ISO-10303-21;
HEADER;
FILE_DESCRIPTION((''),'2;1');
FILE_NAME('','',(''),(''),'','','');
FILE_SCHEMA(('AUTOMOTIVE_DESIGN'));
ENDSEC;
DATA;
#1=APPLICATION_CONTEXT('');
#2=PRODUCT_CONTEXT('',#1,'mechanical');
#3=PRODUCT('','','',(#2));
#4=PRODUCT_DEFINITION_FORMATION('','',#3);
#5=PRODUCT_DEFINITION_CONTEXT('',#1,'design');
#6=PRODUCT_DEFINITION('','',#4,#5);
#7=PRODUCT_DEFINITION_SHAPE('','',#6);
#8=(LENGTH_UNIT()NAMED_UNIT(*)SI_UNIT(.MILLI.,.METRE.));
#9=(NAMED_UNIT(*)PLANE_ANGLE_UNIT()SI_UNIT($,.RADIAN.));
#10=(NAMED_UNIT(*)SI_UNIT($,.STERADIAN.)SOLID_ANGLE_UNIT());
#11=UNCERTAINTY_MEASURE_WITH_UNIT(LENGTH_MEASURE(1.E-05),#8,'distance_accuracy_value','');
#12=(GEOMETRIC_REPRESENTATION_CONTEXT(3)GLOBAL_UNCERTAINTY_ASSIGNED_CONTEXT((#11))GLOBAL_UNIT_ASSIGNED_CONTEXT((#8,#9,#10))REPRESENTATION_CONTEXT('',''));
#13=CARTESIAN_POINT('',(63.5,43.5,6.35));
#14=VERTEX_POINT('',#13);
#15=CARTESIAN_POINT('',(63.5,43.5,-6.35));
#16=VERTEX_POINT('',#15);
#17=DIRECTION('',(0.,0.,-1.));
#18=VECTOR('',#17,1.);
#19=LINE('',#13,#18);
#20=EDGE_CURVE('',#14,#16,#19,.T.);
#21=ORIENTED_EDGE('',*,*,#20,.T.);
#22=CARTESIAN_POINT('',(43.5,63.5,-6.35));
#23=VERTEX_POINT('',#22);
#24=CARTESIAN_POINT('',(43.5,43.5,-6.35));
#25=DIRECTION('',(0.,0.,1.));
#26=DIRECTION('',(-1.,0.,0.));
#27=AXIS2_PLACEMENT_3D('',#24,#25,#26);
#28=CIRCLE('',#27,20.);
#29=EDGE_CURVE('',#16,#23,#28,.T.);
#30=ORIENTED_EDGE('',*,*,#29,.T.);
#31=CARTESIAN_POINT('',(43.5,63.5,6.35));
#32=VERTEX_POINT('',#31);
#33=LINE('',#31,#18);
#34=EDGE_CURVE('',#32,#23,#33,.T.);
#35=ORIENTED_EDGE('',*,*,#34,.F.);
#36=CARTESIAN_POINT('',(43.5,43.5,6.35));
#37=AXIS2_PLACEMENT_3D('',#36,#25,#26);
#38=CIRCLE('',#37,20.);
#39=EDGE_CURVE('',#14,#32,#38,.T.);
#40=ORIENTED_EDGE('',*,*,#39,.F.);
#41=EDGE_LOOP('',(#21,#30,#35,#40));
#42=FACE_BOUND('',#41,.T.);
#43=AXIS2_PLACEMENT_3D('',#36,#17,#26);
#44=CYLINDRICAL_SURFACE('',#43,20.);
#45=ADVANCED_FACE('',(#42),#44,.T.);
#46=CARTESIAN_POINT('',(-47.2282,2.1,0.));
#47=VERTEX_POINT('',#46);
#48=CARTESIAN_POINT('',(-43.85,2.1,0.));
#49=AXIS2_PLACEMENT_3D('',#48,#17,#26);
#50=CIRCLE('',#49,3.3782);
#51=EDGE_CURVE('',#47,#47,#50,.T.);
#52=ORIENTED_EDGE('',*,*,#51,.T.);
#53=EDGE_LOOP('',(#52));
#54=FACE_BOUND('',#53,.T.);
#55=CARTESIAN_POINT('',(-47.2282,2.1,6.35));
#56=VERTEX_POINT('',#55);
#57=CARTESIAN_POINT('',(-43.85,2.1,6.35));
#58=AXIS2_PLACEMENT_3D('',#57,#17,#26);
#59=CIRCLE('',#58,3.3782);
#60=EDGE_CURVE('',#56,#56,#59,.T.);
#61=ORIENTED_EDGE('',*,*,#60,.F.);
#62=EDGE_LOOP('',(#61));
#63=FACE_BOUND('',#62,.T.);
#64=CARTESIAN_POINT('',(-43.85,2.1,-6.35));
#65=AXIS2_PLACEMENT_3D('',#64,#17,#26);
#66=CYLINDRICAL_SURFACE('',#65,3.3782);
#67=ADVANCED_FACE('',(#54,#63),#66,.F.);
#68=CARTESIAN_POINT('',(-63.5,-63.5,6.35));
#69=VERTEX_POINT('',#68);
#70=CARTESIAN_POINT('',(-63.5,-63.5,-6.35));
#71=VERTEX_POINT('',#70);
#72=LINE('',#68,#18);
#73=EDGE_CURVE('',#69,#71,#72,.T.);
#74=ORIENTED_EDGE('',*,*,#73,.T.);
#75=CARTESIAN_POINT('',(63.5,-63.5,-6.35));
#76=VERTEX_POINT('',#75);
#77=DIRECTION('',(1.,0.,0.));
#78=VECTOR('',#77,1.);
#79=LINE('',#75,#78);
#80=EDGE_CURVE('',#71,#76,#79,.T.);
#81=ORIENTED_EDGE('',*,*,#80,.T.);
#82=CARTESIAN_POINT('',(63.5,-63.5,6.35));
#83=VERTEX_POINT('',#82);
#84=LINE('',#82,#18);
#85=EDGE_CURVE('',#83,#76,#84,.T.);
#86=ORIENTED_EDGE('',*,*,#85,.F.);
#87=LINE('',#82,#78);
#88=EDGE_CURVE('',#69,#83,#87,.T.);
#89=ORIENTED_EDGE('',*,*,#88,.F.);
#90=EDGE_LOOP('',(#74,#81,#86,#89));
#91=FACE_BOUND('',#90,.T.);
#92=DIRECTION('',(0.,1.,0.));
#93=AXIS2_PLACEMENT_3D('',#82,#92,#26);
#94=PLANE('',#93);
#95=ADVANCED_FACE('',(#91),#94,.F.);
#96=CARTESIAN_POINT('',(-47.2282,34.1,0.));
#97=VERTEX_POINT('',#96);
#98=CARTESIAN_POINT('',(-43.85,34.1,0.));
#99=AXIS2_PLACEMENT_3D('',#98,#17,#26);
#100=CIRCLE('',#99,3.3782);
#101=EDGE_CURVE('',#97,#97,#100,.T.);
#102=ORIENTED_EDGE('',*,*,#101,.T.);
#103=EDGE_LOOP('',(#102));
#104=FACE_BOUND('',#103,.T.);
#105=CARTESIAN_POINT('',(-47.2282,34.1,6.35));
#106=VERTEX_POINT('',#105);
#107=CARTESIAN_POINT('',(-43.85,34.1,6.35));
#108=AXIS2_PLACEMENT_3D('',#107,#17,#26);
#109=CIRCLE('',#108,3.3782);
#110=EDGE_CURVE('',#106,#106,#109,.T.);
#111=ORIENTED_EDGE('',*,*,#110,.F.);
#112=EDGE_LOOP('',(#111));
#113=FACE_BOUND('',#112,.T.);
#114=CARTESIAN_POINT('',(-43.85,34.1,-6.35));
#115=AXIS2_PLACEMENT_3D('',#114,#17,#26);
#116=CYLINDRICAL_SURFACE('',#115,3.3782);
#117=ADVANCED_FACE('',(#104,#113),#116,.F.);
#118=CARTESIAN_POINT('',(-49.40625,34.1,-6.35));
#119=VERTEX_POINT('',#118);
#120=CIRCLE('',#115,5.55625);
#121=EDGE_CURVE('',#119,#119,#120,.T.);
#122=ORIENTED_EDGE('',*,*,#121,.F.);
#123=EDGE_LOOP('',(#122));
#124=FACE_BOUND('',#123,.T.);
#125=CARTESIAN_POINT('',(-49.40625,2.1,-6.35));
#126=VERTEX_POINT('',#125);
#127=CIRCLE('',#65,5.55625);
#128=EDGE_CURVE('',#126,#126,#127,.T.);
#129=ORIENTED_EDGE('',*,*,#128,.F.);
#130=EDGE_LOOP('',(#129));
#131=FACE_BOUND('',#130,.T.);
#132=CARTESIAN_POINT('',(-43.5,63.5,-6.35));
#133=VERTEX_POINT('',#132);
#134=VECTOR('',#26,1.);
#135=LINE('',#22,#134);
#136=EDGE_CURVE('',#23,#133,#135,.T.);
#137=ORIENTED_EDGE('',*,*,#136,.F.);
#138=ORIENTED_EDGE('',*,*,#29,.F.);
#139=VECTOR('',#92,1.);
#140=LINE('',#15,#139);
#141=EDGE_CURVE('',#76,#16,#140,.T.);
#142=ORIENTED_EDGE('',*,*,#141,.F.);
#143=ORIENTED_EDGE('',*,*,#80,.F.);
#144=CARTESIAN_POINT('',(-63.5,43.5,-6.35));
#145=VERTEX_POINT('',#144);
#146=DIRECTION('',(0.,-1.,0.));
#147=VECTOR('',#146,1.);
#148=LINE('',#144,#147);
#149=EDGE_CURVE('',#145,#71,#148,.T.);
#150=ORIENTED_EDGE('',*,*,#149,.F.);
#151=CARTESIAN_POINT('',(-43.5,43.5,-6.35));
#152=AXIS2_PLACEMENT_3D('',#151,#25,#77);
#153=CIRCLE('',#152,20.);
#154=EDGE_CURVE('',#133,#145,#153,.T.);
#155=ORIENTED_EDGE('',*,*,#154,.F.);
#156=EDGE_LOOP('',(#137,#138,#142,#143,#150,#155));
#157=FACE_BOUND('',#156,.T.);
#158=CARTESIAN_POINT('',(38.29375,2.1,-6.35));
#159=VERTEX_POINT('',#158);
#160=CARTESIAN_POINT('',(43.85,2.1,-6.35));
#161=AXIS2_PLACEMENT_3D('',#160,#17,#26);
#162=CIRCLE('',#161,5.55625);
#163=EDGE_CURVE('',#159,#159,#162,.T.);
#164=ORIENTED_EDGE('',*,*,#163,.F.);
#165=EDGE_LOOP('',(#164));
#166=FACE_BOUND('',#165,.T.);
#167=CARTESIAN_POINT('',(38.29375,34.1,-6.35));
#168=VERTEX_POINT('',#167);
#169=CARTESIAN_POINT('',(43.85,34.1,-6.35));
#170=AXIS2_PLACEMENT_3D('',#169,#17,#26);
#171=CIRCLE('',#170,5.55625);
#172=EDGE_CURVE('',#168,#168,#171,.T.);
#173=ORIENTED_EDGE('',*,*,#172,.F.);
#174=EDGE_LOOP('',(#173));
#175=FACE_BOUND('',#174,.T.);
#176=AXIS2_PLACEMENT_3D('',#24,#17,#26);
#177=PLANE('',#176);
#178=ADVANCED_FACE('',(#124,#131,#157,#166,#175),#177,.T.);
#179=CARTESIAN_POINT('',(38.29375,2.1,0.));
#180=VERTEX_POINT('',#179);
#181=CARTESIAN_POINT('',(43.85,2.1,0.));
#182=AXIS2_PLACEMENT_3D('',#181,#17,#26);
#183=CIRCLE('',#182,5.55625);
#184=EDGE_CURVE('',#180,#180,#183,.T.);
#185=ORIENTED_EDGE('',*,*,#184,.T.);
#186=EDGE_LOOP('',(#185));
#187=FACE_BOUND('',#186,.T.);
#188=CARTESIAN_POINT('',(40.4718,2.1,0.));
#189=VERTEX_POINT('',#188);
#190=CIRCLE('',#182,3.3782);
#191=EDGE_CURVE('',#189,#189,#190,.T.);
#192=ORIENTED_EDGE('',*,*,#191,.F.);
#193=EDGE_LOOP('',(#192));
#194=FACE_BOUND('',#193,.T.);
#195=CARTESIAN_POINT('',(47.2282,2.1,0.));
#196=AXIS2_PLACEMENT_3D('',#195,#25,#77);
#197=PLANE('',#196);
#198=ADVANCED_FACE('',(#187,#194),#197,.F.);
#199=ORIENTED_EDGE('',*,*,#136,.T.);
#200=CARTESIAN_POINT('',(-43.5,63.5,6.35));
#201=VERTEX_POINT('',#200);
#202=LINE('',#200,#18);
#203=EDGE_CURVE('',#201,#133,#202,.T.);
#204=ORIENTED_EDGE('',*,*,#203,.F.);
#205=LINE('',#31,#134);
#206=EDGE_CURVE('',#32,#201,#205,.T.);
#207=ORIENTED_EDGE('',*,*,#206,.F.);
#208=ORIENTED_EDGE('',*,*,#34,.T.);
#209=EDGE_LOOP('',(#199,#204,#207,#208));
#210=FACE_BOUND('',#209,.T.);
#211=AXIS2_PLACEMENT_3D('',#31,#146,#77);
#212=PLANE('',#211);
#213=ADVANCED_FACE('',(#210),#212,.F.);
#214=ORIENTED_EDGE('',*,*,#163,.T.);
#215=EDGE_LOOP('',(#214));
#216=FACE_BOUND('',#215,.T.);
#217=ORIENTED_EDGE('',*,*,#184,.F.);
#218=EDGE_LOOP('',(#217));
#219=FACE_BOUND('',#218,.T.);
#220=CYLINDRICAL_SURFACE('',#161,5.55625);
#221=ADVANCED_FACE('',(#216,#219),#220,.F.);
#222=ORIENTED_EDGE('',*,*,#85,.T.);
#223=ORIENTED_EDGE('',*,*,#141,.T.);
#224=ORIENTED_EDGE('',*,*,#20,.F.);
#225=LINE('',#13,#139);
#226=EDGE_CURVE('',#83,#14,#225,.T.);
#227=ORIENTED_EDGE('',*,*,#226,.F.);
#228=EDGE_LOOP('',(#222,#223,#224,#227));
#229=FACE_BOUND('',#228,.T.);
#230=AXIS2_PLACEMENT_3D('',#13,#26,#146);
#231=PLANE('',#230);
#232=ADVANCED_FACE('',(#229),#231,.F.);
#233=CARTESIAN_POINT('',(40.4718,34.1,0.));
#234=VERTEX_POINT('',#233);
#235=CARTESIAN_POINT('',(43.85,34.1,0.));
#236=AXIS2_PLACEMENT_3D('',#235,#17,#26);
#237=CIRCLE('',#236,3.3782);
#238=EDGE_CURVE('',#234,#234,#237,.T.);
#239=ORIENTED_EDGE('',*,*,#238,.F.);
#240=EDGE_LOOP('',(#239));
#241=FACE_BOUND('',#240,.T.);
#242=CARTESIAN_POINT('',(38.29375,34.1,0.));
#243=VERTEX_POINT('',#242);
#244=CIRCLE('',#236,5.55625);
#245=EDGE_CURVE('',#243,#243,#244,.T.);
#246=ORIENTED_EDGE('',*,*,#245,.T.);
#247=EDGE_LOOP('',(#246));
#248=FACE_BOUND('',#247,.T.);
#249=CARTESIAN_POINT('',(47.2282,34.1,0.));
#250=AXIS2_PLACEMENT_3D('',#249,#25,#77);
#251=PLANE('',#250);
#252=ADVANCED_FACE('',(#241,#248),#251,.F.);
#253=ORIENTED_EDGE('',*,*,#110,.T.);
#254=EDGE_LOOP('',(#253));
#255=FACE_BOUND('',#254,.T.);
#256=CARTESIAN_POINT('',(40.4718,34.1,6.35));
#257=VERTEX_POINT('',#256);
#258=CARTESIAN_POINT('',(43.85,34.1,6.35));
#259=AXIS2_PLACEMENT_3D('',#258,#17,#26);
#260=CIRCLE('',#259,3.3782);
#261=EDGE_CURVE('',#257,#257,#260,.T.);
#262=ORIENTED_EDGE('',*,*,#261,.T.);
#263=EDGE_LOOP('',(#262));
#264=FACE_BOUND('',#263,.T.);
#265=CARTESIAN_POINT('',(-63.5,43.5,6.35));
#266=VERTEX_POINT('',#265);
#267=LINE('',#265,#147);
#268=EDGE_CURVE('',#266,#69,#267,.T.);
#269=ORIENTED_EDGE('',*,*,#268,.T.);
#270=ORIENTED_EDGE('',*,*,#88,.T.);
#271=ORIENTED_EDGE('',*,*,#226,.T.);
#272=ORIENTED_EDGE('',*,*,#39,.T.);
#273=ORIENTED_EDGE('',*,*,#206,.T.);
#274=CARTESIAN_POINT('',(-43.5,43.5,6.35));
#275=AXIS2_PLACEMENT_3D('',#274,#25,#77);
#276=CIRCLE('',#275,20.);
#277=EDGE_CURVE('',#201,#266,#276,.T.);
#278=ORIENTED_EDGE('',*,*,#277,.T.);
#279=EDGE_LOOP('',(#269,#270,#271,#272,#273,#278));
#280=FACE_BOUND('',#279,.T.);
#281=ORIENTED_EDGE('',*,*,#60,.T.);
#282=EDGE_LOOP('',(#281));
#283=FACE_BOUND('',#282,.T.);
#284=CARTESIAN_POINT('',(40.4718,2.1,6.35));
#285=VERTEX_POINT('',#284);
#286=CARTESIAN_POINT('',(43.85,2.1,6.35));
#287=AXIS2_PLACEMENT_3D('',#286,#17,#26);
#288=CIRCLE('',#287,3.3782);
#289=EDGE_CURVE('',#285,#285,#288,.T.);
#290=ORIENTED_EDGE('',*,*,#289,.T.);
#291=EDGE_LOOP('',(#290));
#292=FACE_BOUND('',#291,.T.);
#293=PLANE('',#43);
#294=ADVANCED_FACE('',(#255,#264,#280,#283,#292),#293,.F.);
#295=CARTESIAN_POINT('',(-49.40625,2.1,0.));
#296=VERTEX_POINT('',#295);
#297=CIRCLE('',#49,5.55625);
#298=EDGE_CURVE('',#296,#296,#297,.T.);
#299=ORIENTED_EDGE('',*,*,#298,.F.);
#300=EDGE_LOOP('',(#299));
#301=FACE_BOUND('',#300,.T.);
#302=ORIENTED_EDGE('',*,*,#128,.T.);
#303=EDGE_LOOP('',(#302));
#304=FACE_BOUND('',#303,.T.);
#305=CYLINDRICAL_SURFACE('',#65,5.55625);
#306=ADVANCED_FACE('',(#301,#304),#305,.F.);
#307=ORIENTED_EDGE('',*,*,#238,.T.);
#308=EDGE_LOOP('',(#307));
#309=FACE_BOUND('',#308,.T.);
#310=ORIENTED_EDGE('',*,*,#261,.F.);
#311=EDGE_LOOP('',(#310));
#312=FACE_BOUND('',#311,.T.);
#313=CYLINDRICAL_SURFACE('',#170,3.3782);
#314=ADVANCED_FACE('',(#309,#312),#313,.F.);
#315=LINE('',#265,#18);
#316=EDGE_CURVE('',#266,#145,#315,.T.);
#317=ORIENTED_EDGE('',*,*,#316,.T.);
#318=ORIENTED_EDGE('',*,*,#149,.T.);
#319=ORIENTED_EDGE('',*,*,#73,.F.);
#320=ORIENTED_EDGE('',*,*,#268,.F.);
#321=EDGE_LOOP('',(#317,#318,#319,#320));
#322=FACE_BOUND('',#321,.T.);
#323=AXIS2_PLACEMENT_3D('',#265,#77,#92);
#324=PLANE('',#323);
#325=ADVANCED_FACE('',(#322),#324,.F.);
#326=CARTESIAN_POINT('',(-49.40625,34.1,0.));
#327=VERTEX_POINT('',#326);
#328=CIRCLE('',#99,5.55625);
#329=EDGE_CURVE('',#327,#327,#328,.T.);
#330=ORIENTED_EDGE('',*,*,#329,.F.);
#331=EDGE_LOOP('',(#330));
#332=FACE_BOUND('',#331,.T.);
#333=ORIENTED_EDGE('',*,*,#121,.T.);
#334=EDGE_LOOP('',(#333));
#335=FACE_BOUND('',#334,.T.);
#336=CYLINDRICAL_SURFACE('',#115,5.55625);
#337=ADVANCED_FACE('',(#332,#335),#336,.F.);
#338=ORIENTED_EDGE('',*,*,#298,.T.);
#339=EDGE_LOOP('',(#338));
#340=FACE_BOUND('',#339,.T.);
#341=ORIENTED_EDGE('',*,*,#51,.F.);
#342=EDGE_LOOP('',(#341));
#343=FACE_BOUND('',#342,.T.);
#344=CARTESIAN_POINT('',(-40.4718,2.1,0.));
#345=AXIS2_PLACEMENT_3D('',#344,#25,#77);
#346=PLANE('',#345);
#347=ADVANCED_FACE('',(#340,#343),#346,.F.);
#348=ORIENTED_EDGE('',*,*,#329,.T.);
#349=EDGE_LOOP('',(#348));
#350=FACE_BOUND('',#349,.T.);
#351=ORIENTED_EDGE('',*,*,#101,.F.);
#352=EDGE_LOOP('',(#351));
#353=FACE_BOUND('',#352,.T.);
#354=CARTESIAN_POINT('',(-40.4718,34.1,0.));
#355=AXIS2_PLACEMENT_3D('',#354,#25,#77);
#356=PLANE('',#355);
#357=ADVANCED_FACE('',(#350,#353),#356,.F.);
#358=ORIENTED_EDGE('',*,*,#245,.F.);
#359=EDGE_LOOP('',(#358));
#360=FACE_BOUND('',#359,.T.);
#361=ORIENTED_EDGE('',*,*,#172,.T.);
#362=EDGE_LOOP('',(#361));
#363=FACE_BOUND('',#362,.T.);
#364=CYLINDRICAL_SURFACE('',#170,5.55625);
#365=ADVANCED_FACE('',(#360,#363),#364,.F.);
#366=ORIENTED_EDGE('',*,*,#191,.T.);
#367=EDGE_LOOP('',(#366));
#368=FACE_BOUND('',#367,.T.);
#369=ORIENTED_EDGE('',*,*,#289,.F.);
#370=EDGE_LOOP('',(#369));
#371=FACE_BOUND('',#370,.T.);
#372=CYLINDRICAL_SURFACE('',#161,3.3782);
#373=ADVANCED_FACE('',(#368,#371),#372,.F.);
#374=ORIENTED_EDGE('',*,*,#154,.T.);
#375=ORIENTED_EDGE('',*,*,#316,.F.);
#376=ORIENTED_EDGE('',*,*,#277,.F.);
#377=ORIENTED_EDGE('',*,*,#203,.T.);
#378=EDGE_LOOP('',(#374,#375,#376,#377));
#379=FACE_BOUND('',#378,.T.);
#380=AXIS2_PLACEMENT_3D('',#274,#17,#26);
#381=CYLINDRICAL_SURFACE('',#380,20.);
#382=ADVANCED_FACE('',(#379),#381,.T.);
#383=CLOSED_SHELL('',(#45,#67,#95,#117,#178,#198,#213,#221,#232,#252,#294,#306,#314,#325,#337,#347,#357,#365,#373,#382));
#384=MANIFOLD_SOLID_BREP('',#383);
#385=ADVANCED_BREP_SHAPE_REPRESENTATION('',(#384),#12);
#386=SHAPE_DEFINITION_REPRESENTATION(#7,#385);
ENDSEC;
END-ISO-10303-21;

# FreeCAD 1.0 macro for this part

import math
import FreeCAD as App
import Part
import Sketcher
Q = App.Units.Quantity

doc = App.newDocument("Part")
body = doc.addObject("PartDesign::Body", "Body")

# Sketch on XY plane
sketch1 = body.newObject("Sketcher::SketchObject", "Sketch")
sketch1.AttachmentSupport = (doc.getObject("XY_Plane"), [""])
sketch1.MapMode = "FlatFace"
sketch1.addGeometry([
    Part.LineSegment(App.Vector(43.5, 63.5, 0), App.Vector(-43.5, 63.5, 0)),  # 0
    Part.ArcOfCircle(Part.Circle(App.Vector(-43.5, 43.5, 0), App.Vector(0, 0, 1), 20), math.radians(90), math.radians(180)),  # 1
    Part.LineSegment(App.Vector(-63.5, 43.5, 0), App.Vector(-63.5, -63.5, 0)),  # 2
    Part.LineSegment(App.Vector(-63.5, -63.5, 0), App.Vector(63.5, -63.5, 0)),  # 3
    Part.LineSegment(App.Vector(63.5, -63.5, 0), App.Vector(63.5, 43.5, 0)),  # 4
    Part.ArcOfCircle(Part.Circle(App.Vector(43.5, 43.5, 0), App.Vector(0, 0, 1), 20), math.radians(0), math.radians(90)),  # 5
], False)
sketch1.addConstraint([
    Sketcher.Constraint("Tangent", 0, 2, 1, 1),
    Sketcher.Constraint("Tangent", 1, 2, 2, 1),
    Sketcher.Constraint("Coincident", 2, 2, 3, 1),
    Sketcher.Constraint("Coincident", 3, 2, 4, 1),
    Sketcher.Constraint("Tangent", 4, 2, 5, 1),
    Sketcher.Constraint("Tangent", 5, 2, 0, 1),
    Sketcher.Constraint("Horizontal", 0),
    Sketcher.Constraint("Vertical", 2),
    Sketcher.Constraint("Horizontal", 3),
    Sketcher.Constraint("Vertical", 4),
    Sketcher.Constraint("Equal", 1, 5),
    Sketcher.Constraint("Radius", 1, Q("20 mm")),
    Sketcher.Constraint("DistanceX", 0, 2, 0, 1, Q("87 mm")),
    Sketcher.Constraint("DistanceY", 2, 2, 2, 1, Q("107 mm")),
    Sketcher.Constraint("DistanceX", 1, 3, -1, 1, Q("43.5 mm")),
    Sketcher.Constraint("DistanceY", -1, 1, 1, 3, Q("43.5 mm")),
])
pad1 = body.newObject("PartDesign::Pad", "Pad")
pad1.Profile = sketch1
pad1.Length = 12.7
pad1.Midplane = True

# Sketch on XY plane
sketch2 = body.newObject("Sketcher::SketchObject", "Sketch001")
sketch2.AttachmentSupport = (doc.getObject("XY_Plane"), [""])
sketch2.MapMode = "FlatFace"
sketch2.AttachmentOffset = App.Placement(App.Vector(0, 0, -6.35), App.Rotation())
sketch2.addGeometry([
    Part.Circle(App.Vector(-43.85, 34.1, 0), App.Vector(0, 0, 1), 3.3782),
    Part.Circle(App.Vector(-43.85, 2.1, 0), App.Vector(0, 0, 1), 3.3782),
    Part.Circle(App.Vector(43.85, 2.1, 0), App.Vector(0, 0, 1), 3.3782),
    Part.Circle(App.Vector(43.85, 34.1, 0), App.Vector(0, 0, 1), 3.3782),
], False)
sketch2.addConstraint([
    Sketcher.Constraint("Equal", 0, 1),
    Sketcher.Constraint("Equal", 1, 2),
    Sketcher.Constraint("Equal", 2, 3),
    Sketcher.Constraint("Symmetric", 1, 3, 2, 3, -2),
    Sketcher.Constraint("Symmetric", 0, 3, 3, 3, -2),
    Sketcher.Constraint("Vertical", 0, 3, 1, 3),
    Sketcher.Constraint("DistanceY", 1, 3, 0, 3, Q("32 mm")),
    Sketcher.Constraint("Diameter", 0, Q("6.7564 mm")),
    Sketcher.Constraint("DistanceY", -1, 1, 0, 3, Q("34.1 mm")),
    Sketcher.Constraint("DistanceX", 1, 3, 2, 3, Q("87.7 mm")),
])
doc.recompute()
hole = body.newObject("PartDesign::Hole", "Hole")
hole.Profile = sketch2
hole.ThreadType = "None"
hole.Diameter = 6.7564
hole.DepthType = "ThroughAll"
hole.HoleCutType = "Counterbore"
hole.HoleCutDiameter = 11.1125
hole.HoleCutDepth = 6.35
hole.Reversed = True

doc.recompute()
